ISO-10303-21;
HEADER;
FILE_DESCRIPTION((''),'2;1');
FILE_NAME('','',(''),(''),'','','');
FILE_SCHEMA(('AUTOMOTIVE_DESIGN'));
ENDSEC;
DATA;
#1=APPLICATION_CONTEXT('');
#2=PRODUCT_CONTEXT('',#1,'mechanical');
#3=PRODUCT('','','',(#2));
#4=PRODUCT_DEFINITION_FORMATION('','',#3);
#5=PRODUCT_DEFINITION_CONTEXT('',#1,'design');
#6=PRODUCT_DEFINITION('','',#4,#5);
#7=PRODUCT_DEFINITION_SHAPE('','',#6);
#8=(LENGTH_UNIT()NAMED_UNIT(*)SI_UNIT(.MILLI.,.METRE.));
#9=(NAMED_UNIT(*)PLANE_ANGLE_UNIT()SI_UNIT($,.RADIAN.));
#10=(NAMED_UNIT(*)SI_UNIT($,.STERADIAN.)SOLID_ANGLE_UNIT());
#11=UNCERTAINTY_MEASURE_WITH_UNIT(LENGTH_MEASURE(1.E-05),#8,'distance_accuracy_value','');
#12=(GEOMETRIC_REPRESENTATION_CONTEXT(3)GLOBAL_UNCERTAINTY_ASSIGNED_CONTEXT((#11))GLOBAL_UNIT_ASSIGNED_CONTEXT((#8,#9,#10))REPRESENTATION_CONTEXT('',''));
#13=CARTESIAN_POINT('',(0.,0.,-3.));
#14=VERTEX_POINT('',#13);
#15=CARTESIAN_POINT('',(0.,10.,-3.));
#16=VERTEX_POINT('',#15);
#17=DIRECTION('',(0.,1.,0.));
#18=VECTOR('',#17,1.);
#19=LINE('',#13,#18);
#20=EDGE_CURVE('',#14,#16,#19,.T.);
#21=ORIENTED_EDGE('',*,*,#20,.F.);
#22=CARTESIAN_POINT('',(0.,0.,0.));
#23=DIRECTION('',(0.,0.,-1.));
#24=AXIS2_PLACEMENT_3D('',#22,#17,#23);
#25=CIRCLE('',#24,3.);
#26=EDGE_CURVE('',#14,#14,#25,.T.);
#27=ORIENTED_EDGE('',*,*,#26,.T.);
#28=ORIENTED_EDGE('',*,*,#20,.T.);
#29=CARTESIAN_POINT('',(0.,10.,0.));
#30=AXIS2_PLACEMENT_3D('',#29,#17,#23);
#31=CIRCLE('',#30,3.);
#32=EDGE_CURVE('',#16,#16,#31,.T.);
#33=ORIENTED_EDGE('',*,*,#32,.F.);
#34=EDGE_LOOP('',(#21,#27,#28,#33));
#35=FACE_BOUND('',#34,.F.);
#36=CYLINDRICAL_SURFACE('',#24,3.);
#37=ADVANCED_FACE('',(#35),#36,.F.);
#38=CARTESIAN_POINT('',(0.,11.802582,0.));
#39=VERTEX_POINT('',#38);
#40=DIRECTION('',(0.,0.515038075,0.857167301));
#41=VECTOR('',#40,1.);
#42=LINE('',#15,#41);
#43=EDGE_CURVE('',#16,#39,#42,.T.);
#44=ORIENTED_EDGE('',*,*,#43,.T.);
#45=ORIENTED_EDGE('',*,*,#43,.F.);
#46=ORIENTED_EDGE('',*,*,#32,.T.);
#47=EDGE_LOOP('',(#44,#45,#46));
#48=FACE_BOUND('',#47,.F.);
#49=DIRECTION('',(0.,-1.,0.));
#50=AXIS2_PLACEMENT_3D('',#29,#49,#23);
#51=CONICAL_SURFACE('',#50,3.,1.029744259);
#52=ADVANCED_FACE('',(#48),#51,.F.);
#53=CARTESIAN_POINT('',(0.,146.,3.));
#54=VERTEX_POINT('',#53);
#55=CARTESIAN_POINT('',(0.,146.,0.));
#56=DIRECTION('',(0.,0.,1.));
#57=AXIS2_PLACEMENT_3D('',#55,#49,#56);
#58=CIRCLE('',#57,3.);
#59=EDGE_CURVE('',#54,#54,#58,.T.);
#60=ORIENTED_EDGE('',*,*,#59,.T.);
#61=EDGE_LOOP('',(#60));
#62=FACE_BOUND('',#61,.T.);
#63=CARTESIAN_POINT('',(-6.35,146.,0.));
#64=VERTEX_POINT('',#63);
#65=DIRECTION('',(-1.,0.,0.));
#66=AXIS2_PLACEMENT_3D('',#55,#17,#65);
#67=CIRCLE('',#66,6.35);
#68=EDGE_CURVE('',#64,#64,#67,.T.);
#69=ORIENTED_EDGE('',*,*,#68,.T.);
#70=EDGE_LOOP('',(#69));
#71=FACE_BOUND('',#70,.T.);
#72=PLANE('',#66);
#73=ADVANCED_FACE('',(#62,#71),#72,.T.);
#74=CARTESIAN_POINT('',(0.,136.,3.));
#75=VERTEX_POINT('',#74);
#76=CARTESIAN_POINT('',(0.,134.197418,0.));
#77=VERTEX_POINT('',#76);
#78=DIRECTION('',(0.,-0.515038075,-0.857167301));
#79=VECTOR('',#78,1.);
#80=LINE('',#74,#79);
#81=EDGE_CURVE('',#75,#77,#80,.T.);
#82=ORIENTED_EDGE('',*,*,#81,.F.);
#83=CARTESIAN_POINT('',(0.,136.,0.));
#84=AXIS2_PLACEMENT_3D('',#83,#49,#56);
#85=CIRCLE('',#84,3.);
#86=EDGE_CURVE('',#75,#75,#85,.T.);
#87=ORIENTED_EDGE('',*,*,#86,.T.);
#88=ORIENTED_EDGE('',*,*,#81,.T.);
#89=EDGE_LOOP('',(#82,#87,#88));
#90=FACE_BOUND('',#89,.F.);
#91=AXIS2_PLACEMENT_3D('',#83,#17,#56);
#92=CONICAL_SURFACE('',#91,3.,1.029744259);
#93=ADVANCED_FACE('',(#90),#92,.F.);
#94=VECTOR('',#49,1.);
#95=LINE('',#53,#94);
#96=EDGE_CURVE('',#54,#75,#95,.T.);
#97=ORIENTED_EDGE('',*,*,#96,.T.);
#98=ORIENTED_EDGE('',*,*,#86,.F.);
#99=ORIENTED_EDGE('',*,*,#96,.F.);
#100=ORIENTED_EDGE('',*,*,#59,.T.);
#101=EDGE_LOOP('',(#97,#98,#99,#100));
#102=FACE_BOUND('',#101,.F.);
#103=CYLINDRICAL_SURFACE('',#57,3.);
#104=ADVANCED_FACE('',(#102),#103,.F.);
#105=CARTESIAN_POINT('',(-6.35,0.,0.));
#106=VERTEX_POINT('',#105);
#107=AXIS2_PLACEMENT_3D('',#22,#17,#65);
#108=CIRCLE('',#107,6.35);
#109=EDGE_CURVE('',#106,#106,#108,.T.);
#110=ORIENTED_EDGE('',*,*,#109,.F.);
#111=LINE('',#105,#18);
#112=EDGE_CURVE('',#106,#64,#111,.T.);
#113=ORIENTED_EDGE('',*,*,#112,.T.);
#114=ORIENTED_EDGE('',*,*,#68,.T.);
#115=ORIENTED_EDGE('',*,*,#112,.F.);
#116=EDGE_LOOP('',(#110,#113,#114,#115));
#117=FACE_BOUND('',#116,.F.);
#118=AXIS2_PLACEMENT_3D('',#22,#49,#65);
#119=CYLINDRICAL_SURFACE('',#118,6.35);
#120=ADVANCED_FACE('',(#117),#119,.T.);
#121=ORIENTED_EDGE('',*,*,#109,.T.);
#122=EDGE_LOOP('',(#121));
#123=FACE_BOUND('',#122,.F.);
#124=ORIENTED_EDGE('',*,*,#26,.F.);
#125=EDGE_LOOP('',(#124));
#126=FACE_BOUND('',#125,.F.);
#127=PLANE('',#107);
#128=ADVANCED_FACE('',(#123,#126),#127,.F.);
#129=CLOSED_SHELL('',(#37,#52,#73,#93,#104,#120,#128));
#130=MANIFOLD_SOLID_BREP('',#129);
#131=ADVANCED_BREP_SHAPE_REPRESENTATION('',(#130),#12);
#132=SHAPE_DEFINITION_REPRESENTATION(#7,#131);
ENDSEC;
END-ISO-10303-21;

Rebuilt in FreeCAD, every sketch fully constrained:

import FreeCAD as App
import Part
import Sketcher
from FreeCAD import Vector
Q = App.Units.Quantity

doc = App.newDocument("Part")
body = doc.addObject("PartDesign::Body", "Body")

# Sketch on XZ plane
sketch1 = doc.addObject("Sketcher::SketchObject", "Sketch")
body.addObject(sketch1)
sketch1.AttachmentSupport = (doc.XZ_Plane, [""])
sketch1.MapMode = "FlatFace"
sketch1.addGeometry(Part.Circle(Vector(0, 0, 0), Vector(0, 0, 1), 6), False)
sketch1.addConstraint(Sketcher.Constraint("Coincident", 0, 3, -1, 1))
sketch1.addConstraint(Sketcher.Constraint("Diameter", 0, Q("12.7 mm")))
pad1 = doc.addObject("PartDesign::Pad", "Pad")
body.addObject(pad1)
pad1.Profile = sketch1
pad1.Length = 146
pad1.Reversed = True

# Sketch on XZ plane
sketch2 = doc.addObject("Sketcher::SketchObject", "Sketch001")
body.addObject(sketch2)
sketch2.AttachmentSupport = (doc.XZ_Plane, [""])
sketch2.MapMode = "FlatFace"
sketch2.AttachmentOffset = App.Placement(Vector(0, 0, -146), App.Rotation())
sketch2.addGeometry(Part.Circle(Vector(0, 0, 0), Vector(0, 0, 1), 3), False)
sketch2.addConstraint(Sketcher.Constraint("Coincident", 0, 3, -1, 1))
sketch2.addConstraint(Sketcher.Constraint("Diameter", 0, Q("6 mm")))
doc.recompute()
hole = doc.addObject("PartDesign::Hole", "Hole")
body.addObject(hole)
hole.Profile = sketch2
hole.ThreadType = "None"
hole.Diameter = 6
hole.DepthType = "Dimension"
hole.Depth = 10
hole.DrillPoint = "Angled"
hole.DrillPointAngle = 118
hole.Reversed = True

# Sketch on XZ plane
sketch3 = doc.addObject("Sketcher::SketchObject", "Sketch002")
body.addObject(sketch3)
sketch3.AttachmentSupport = (doc.XZ_Plane, [""])
sketch3.MapMode = "FlatFace"
sketch3.addGeometry(Part.Circle(Vector(0, 0, 0), Vector(0, 0, 1), 3), False)
sketch3.addConstraint(Sketcher.Constraint("Coincident", 0, 3, -1, 1))
sketch3.addConstraint(Sketcher.Constraint("Diameter", 0, Q("6 mm")))
doc.recompute()
hole2 = doc.addObject("PartDesign::Hole", "Hole001")
body.addObject(hole2)
hole2.Profile = sketch3
hole2.ThreadType = "None"
hole2.Diameter = 6
hole2.DepthType = "Dimension"
hole2.Depth = 10
hole2.DrillPoint = "Angled"
hole2.DrillPointAngle = 118

doc.recompute()
